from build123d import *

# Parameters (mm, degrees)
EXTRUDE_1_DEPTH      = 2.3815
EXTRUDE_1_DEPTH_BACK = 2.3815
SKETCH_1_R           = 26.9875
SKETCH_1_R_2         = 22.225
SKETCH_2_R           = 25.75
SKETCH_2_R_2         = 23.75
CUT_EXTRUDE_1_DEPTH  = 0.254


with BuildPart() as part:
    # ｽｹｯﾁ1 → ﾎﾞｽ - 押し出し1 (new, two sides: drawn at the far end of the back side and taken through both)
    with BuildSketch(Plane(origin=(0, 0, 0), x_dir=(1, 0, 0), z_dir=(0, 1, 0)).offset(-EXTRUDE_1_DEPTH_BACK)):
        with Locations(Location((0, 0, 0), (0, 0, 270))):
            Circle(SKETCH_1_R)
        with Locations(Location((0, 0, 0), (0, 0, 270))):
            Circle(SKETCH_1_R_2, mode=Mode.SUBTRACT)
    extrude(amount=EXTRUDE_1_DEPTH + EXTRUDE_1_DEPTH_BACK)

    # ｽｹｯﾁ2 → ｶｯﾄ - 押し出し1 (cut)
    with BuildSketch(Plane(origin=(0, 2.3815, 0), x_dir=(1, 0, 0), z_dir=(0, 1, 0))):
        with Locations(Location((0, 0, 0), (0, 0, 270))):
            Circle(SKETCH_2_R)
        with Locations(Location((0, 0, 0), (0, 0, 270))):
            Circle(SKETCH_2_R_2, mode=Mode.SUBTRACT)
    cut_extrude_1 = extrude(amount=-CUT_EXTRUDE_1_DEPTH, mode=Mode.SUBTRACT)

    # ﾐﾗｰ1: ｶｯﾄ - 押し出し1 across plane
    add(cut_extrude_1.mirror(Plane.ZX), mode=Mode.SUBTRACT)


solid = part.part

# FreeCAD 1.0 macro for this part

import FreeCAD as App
import Part
import Sketcher

V = App.Vector
Q = App.Units.Quantity

doc = App.newDocument("Part")
body = doc.addObject("PartDesign::Body", "Body")

# Sketch on XZ plane
sketch1 = doc.addObject("Sketcher::SketchObject", "Sketch")
body.addObject(sketch1)
sketch1.AttachmentSupport = (doc.XZ_Plane, [""])
sketch1.MapMode = "FlatFace"
sketch1.addGeometry(Part.Circle(V(0, 0, 0), V(0, 0, 1), 26.9875), False)
sketch1.addGeometry(Part.Circle(V(0, 0, 0), V(0, 0, 1), 22.225), False)
sketch1.addConstraint(Sketcher.Constraint("Coincident", 0, 3, -1, 1))
sketch1.addConstraint(Sketcher.Constraint("Coincident", 1, 3, -1, 1))
sketch1.addConstraint(Sketcher.Constraint("Diameter", 1, Q("1.75 in")))
sketch1.addConstraint(Sketcher.Constraint("Diameter", 0, Q("2.125 in")))
pad1 = doc.addObject("PartDesign::Pad", "Pad")
body.addObject(pad1)
pad1.Profile = sketch1
pad1.Type = "TwoLengths"
pad1.Length = 2.3815
pad1.Length2 = 2.3815
pad1.Reversed = True

# Sketch on XZ plane
sketch2 = doc.addObject("Sketcher::SketchObject", "Sketch001")
body.addObject(sketch2)
sketch2.AttachmentSupport = (doc.XZ_Plane, [""])
sketch2.MapMode = "FlatFace"
sketch2.AttachmentOffset = App.Placement(V(0, 0, -2.3815), App.Rotation())
sketch2.addGeometry(Part.Circle(V(0, 0, 0), V(0, 0, 1), 25.75), False)
sketch2.addGeometry(Part.Circle(V(0, 0, 0), V(0, 0, 1), 23.75), False)
sketch2.addConstraint(Sketcher.Constraint("Coincident", 0, 3, -1, 1))
sketch2.addConstraint(Sketcher.Constraint("Coincident", 1, 3, -1, 1))
sketch2.addConstraint(Sketcher.Constraint("Diameter", 0, 51.5))
sketch2.addConstraint(Sketcher.Constraint("Diameter", 1, 47.5))
pocket1 = doc.addObject("PartDesign::Pocket", "Pocket")
body.addObject(pocket1)
pocket1.Profile = sketch2
pocket1.Length = Q("0.01 in")
pocket1.Reversed = True
doc.recompute()

mirrored = doc.addObject("PartDesign::Mirrored", "Mirrored")
body.addObject(mirrored)
mirrored.Originals = [pocket1]
mirrored.MirrorPlane = (doc.XZ_Plane, [""])
body.Tip = mirrored

doc.recompute()
